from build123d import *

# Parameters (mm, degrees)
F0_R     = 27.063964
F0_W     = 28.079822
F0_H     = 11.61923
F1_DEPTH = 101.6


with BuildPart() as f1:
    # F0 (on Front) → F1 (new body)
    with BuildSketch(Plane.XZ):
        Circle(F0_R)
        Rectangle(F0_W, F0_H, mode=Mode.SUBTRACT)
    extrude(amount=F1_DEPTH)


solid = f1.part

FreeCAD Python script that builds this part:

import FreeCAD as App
import Part
import Sketcher
from FreeCAD import Vector
Q = App.Units.Quantity


def add_polygon(sketch, points):
    """Adds a closed chain of lines whose ends are joined by coincident constraints."""
    first, n = sketch.GeometryCount, len(points)
    for a, b in zip(points, points[1:] + points[:1]):
        sketch.addGeometry(Part.LineSegment(App.Vector(*a, 0), App.Vector(*b, 0)), False)
    for i in range(n):
        sketch.addConstraint(Sketcher.Constraint("Coincident", first + i, 2, first + (i + 1) % n, 1))

doc = App.newDocument("Part")
params = doc.addObject("Spreadsheet::Sheet", "Params")
for row, (alias, value) in enumerate([
    ("pad1_length", "4 in"),
], start=1):
    params.set(f"A{row}", alias)
    params.set(f"B{row}", "=" + value)
    params.setAlias(f"B{row}", alias)

body = doc.addObject("PartDesign::Body", "Body")

# Sketch on XZ plane
sketch1 = body.newObject("Sketcher::SketchObject", "Sketch")
sketch1.AttachmentSupport = (doc.getObject("XZ_Plane"), [""])
sketch1.MapMode = "FlatFace"
sketch1.addGeometry(Part.Circle(Vector(0, 0, 0), Vector(0, 0, 1), 27), False)  # 0
add_polygon(sketch1, [(14, -6), (-14, -6), (-14, 6), (14, 6)])  # lines 1-4
sketch1.addConstraint([
    Sketcher.Constraint("Horizontal", 1),
    Sketcher.Constraint("Vertical", 2),
    Sketcher.Constraint("Horizontal", 3),
    Sketcher.Constraint("Vertical", 4),
    Sketcher.Constraint("Coincident", 0, 3, -1, 1),
    Sketcher.Constraint("Symmetric", 1, 2, 3, 2, -1, 1),
    Sketcher.Constraint("Diameter", 0, Q("54.127928 mm")),
    Sketcher.Constraint("DistanceX", 1, 2, 1, 1, Q("28.079822 mm")),
    Sketcher.Constraint("DistanceY", 2, 1, 2, 2, Q("11.61923 mm")),
])
pad1 = body.newObject("PartDesign::Pad", "Pad")
pad1.Profile = sketch1
pad1.setExpression("Length", "Params.pad1_length")

doc.recompute()
